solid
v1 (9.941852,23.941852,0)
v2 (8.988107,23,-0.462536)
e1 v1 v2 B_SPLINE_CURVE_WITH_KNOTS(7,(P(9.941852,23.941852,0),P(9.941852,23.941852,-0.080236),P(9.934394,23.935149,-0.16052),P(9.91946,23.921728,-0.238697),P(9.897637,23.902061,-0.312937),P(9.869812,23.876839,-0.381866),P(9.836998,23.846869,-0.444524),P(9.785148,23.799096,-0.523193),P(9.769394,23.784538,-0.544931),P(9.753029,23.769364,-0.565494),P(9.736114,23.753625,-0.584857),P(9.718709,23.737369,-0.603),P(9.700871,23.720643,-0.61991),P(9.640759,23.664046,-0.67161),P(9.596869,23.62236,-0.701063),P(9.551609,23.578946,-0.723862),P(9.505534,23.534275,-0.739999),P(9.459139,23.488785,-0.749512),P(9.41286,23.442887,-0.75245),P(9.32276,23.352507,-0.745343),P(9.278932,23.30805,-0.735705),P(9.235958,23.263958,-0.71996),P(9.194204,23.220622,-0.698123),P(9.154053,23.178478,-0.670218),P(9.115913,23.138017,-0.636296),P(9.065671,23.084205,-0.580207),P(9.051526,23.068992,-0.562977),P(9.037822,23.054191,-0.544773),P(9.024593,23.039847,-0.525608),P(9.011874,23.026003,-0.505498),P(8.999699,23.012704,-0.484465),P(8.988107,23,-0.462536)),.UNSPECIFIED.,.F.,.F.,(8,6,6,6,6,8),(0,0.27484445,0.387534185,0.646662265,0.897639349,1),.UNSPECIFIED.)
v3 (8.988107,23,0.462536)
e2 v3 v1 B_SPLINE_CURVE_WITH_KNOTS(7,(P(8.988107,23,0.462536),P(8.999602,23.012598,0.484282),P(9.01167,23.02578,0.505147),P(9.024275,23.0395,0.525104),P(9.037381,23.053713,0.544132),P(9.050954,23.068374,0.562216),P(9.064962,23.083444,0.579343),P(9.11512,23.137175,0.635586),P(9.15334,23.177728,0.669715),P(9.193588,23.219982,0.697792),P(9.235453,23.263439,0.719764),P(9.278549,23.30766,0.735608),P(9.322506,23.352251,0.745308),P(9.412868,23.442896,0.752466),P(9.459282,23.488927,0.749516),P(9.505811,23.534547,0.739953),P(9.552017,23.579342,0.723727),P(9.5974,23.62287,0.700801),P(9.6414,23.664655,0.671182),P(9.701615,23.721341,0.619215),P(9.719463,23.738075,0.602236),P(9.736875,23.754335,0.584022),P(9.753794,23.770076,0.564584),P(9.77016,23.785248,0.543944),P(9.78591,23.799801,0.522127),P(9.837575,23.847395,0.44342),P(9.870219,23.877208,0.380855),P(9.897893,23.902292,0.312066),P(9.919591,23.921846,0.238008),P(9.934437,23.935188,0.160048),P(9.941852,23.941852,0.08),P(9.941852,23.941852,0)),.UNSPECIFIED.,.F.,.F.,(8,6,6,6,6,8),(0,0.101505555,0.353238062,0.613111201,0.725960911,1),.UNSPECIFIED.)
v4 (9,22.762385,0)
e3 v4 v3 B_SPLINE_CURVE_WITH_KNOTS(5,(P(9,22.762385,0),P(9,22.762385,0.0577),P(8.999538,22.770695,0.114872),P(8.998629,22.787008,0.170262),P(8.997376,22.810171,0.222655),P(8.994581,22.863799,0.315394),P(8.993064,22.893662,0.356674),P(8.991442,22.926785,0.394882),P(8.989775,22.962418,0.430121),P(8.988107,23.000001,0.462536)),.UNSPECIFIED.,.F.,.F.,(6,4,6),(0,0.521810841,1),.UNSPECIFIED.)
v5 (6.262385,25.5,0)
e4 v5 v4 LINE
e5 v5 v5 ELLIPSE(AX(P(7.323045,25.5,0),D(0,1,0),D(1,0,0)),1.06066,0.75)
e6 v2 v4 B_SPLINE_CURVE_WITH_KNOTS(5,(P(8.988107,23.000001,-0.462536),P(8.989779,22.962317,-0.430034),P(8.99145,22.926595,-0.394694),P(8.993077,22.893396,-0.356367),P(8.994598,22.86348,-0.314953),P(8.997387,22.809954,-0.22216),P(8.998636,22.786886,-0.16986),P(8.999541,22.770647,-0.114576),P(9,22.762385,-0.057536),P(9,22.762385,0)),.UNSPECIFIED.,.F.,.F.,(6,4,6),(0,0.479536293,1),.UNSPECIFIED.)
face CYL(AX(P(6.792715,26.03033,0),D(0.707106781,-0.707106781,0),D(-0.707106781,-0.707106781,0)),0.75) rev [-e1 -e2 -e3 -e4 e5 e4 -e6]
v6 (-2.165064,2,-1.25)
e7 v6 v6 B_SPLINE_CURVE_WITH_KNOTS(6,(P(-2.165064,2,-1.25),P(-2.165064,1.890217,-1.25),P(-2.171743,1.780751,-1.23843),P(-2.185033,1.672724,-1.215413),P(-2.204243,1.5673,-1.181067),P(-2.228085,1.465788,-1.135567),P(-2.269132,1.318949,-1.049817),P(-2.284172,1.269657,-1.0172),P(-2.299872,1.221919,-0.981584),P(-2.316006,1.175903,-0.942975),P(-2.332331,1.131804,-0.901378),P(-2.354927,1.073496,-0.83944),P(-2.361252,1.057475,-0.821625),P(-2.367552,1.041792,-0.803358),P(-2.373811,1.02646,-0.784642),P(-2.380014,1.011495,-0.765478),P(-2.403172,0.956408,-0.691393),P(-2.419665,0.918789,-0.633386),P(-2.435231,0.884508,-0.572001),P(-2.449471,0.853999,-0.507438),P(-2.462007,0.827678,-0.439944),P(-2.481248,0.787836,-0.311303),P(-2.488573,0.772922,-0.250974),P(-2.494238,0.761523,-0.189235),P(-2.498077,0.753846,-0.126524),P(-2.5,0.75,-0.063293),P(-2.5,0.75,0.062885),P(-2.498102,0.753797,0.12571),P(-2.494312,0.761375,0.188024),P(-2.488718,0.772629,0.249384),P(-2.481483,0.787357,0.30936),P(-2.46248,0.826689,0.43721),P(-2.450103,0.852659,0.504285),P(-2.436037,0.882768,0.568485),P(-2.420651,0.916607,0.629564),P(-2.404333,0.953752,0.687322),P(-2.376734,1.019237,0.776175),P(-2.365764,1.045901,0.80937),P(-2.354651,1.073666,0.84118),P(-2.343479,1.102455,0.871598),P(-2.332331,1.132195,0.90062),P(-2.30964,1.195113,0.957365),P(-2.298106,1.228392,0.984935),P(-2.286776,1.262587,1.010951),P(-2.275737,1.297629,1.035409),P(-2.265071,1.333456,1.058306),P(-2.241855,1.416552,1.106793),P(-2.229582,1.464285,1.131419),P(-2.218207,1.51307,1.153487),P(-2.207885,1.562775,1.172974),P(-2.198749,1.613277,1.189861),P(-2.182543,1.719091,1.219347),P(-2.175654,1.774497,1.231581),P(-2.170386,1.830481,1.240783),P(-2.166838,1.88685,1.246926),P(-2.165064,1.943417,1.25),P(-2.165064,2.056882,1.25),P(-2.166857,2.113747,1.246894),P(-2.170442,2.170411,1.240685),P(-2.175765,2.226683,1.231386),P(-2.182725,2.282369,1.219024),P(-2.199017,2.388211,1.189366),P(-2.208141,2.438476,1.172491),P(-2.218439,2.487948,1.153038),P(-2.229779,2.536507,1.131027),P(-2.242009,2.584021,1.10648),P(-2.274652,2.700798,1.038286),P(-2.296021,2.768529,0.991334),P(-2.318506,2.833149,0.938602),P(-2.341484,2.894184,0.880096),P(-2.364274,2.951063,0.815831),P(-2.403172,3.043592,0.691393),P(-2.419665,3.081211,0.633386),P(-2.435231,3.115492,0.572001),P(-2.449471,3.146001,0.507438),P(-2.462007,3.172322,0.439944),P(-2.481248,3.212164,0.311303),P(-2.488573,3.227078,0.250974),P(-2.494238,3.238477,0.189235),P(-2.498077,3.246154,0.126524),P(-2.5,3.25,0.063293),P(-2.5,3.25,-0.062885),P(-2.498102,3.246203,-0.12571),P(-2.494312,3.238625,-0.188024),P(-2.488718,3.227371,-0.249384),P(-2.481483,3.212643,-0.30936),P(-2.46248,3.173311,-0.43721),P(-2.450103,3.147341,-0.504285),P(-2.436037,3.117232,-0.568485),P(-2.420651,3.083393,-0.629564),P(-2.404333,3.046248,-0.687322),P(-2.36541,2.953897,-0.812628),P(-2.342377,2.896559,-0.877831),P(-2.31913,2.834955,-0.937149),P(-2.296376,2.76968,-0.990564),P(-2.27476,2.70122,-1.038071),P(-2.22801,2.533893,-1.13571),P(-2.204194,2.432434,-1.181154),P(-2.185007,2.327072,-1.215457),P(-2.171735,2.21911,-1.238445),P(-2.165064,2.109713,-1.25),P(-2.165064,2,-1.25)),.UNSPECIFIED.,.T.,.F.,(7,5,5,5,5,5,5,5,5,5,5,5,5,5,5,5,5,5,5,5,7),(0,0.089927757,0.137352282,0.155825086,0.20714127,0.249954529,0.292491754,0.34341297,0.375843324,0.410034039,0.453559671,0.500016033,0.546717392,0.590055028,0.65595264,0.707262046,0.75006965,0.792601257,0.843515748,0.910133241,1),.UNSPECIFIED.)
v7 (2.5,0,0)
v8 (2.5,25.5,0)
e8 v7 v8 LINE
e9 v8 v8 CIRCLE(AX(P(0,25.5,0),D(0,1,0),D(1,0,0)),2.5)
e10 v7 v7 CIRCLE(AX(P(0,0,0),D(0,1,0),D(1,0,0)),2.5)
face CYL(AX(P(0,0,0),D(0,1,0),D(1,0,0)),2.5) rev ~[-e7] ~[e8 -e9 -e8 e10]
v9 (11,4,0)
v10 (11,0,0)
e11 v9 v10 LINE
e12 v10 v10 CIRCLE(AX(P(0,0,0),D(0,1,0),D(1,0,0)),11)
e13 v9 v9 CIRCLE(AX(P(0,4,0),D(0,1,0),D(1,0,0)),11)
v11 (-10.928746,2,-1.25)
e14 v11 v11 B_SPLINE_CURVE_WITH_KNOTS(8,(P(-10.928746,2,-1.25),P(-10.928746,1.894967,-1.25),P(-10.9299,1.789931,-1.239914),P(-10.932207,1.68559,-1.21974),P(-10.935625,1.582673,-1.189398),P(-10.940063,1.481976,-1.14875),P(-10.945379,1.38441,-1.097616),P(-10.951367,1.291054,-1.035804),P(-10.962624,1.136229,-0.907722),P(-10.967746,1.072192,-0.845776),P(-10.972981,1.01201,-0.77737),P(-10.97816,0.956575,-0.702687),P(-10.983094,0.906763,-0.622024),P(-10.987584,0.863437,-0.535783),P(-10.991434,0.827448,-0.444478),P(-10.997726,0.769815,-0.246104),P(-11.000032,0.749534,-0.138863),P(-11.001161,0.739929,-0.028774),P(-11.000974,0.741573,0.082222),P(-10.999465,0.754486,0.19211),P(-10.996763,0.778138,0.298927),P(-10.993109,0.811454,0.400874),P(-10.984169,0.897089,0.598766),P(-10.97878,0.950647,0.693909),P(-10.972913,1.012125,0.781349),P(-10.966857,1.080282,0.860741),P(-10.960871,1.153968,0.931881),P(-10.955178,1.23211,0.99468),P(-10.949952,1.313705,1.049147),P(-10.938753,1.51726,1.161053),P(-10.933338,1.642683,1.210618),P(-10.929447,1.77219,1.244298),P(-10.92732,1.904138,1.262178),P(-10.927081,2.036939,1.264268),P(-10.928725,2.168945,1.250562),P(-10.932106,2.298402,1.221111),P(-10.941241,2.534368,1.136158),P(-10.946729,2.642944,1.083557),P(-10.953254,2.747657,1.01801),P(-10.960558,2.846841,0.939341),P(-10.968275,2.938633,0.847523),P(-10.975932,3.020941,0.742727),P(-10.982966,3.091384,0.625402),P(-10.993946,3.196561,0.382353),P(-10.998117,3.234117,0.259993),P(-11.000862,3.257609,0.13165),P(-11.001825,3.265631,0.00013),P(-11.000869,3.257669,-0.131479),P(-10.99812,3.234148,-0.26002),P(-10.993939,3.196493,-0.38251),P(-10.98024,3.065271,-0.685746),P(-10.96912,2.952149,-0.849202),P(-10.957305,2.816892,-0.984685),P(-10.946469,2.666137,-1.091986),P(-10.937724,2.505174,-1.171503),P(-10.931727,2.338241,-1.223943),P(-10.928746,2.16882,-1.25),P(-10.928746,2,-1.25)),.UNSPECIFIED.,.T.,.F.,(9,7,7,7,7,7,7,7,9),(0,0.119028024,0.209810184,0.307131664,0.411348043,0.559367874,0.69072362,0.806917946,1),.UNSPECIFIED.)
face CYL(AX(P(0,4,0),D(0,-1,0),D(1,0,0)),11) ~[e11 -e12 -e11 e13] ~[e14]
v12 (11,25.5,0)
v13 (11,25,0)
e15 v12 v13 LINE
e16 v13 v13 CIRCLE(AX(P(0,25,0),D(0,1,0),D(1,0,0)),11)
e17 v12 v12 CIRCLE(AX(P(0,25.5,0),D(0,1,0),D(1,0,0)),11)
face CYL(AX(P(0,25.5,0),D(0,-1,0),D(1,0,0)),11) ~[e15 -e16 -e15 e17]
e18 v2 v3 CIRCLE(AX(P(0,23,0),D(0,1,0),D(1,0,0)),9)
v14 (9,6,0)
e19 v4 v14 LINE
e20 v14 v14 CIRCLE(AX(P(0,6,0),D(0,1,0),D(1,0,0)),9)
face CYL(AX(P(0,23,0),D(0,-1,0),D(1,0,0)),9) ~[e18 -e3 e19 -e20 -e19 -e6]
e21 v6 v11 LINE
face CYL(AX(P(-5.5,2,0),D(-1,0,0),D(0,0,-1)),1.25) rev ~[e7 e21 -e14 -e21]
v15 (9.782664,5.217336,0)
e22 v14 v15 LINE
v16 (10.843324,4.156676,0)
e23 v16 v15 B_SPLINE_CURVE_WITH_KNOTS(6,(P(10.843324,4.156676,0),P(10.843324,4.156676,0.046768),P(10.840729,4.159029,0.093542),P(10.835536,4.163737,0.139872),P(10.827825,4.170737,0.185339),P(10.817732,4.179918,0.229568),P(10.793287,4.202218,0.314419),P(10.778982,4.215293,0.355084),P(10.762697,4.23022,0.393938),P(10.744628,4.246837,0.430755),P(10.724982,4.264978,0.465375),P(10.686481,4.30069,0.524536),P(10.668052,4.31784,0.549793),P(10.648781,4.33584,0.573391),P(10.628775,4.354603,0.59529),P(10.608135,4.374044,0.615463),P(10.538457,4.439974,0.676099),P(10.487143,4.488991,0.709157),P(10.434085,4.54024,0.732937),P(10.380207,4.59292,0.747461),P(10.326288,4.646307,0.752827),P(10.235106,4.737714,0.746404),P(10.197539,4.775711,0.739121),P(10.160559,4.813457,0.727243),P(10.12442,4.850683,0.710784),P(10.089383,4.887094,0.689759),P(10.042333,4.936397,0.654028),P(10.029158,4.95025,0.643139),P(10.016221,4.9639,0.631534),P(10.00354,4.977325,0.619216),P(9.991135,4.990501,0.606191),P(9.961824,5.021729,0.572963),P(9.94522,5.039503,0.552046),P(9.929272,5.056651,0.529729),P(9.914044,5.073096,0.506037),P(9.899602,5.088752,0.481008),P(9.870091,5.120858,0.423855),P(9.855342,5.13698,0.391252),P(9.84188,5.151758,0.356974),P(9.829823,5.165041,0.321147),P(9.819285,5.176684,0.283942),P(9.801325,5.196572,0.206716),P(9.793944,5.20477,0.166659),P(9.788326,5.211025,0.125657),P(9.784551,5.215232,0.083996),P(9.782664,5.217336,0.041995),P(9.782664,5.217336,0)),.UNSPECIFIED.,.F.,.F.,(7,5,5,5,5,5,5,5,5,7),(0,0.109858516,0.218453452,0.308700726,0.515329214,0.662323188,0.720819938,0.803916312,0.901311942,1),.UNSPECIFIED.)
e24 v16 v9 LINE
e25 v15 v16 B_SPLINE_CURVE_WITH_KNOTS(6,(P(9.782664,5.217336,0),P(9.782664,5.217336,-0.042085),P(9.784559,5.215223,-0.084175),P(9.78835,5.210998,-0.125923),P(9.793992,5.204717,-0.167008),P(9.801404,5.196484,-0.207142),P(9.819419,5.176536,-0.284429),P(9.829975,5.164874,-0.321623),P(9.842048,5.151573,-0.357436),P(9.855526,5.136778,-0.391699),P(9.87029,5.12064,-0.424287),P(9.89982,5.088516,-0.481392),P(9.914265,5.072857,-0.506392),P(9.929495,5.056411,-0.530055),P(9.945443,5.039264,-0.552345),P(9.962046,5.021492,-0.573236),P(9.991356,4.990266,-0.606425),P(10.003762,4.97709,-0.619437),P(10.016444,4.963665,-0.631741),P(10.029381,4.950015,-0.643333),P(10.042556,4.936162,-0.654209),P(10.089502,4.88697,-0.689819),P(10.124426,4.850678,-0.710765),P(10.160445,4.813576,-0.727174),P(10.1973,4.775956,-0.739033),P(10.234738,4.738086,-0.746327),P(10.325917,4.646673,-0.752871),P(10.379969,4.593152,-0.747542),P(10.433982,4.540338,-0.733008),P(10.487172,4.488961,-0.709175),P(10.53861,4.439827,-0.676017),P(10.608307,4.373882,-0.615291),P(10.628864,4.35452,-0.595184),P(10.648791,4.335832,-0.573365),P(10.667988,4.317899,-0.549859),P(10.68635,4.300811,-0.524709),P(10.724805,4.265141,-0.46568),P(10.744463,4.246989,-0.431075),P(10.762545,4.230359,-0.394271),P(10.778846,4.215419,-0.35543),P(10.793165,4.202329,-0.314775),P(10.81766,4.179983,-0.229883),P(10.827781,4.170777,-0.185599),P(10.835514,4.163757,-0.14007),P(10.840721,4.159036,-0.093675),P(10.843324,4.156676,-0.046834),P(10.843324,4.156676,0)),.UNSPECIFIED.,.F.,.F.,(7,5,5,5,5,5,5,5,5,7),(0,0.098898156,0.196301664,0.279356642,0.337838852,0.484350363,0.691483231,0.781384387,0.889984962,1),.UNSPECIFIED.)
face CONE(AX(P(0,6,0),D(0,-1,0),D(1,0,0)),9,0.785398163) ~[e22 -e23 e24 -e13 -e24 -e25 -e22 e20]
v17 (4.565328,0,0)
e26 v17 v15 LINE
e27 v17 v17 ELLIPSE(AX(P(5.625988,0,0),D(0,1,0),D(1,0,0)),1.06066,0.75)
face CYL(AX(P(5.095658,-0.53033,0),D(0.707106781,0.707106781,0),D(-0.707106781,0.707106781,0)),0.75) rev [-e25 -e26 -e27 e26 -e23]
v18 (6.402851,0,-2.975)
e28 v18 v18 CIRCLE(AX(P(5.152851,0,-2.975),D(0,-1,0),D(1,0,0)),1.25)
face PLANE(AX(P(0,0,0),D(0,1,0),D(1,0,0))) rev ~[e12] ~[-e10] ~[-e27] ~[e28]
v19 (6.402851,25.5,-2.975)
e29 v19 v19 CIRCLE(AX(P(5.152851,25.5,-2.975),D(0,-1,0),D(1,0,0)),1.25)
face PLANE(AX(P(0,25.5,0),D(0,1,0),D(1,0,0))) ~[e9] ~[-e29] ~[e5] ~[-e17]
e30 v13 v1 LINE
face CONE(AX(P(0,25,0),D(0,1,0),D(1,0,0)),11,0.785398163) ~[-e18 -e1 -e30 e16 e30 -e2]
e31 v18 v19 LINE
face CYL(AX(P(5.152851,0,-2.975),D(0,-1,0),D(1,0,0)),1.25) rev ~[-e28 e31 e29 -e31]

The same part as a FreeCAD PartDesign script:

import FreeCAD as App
import Part
import Sketcher
from FreeCAD import Vector
Q = App.Units.Quantity


def add_polygon(sketch, points):
    """Adds a closed chain of lines whose ends are joined by coincident constraints."""
    first, n = sketch.GeometryCount, len(points)
    for a, b in zip(points, points[1:] + points[:1]):
        sketch.addGeometry(Part.LineSegment(App.Vector(*a, 0), App.Vector(*b, 0)), False)
    for i in range(n):
        sketch.addConstraint(Sketcher.Constraint("Coincident", first + i, 2, first + (i + 1) % n, 1))

doc = App.newDocument("Part")
params = doc.addObject("Spreadsheet::Sheet", "Params")
for row, (alias, value) in enumerate([
    ("sketch1_height", "4 mm"),
    ("sketch1_height2", "17 mm"),
    ("sketch1_width", "8.5 mm"),
    ("sketch1_height3", "25.5 mm"),
    ("sketch1_height4", "0.5 mm"),
    ("revolution_angle", "360 deg"),
    ("sketch2_diameter", "2.5 mm"),
    ("sketch3_length", "0.75 mm"),
    ("groove_angle", "360 deg"),
    ("sketch4_length", "0.75 mm"),
    ("groove2_angle", "360 deg"),
    ("sketch5_width", "11 mm"),
    ("sketch5_height", "1.25 mm"),
    ("groove3_angle", "360 deg"),
], start=1):
    params.set(f"A{row}", alias)
    params.set(f"B{row}", "=" + value)
    params.setAlias(f"B{row}", alias)

body = doc.addObject("PartDesign::Body", "Body")

sketch1 = body.newObject("Sketcher::SketchObject", "Sketch")
sketch1.AttachmentSupport = (doc.getObject("XY_Plane"), [""])
sketch1.MapMode = "FlatFace"
add_polygon(sketch1, [(11, 25.5), (2.5, 25.5), (2.5, 0), (11, 0), (11, 4), (9, 6), (9, 23), (11, 25)])
sketch1.addConstraint(Sketcher.Constraint("Horizontal", 0))
sketch1.addConstraint(Sketcher.Constraint("Vertical", 1))
sketch1.addConstraint(Sketcher.Constraint("Horizontal", 2))
sketch1.addConstraint(Sketcher.Constraint("Vertical", 3))
sketch1.addConstraint(Sketcher.Constraint("Vertical", 5))
sketch1.addConstraint(Sketcher.Constraint("Vertical", 7))
sketch1.addConstraint(Sketcher.Constraint("PointOnObject", 1, 2, -1))
sketch1.addConstraint(Sketcher.Constraint("Perpendicular", 4, 6))
sketch1.addConstraint(Sketcher.Constraint("Vertical", 3, 2, 6, 2))
sketch1.addConstraint(Sketcher.Constraint("Equal", 4, 6))
sketch1.addConstraint(Sketcher.Constraint("DistanceY", 3, 1, 3, 2, Q("4 mm")))
sketch1.addConstraint(Sketcher.Constraint("DistanceY", 5, 1, 5, 2, Q("17 mm")))
sketch1.addConstraint(Sketcher.Constraint("DistanceX", 0, 2, 0, 1, Q("8.5 mm")))
sketch1.addConstraint(Sketcher.Constraint("DistanceY", 1, 2, 1, 1, Q("25.5 mm")))
sketch1.addConstraint(Sketcher.Constraint("DistanceY", 7, 1, 7, 2, Q("0.5 mm")))
sketch1.addConstraint(Sketcher.Constraint("DistanceX", -1, 1, 2, 2, Q("11 mm")))
sketch1.setExpression("Constraints[18]", "Params.sketch1_height")
sketch1.setExpression("Constraints[19]", "Params.sketch1_height2")
sketch1.setExpression("Constraints[20]", "Params.sketch1_width")
sketch1.setExpression("Constraints[21]", "Params.sketch1_height3")
sketch1.setExpression("Constraints[22]", "Params.sketch1_height4")
revolution = body.newObject("PartDesign::Revolution", "Revolution")
revolution.Profile = sketch1
revolution.ReferenceAxis = (sketch1, ["V_Axis"])
revolution.setExpression("Angle", "Params.revolution_angle")

sketch2 = body.newObject("Sketcher::SketchObject", "Sketch001")
sketch2.AttachmentSupport = (doc.getObject("XZ_Plane"), [""])
sketch2.MapMode = "FlatFace"
sketch2.addGeometry(Part.Circle(Vector(5.2, -3, 0), Vector(0, 0, 1), 1.2), False)
sketch2.addConstraint(Sketcher.Constraint("Diameter", 0, Q("2.5 mm")))
sketch2.addConstraint(Sketcher.Constraint("DistanceY", 0, 3, -1, 1, Q("2.975 mm")))
sketch2.addConstraint(Sketcher.Constraint("DistanceX", -1, 1, 0, 3, Q("5.152851 mm")))
sketch2.setExpression("Constraints[0]", "Params.sketch2_diameter")
pocket1 = body.newObject("PartDesign::Pocket", "Pocket")
pocket1.Profile = sketch2
pocket1.Type = "ThroughAll"

sketch3 = body.newObject("Sketcher::SketchObject", "Sketch002")
sketch3.AttachmentSupport = (doc.getObject("XY_Plane"), [""])
sketch3.MapMode = "FlatFace"
add_polygon(sketch3, [(4.6, 0), (5.1, -0.5), (10.3, 4.7), (9.8, 5.2)])
sketch3.addGeometry(Part.LineSegment(Vector(10.3, 4.7, 0), Vector(5.1, -0.5, 0)), True)
sketch3.addConstraint(Sketcher.Constraint("Coincident", 4, 1, 1, 2))
sketch3.addConstraint(Sketcher.Constraint("Coincident", 4, 2, 0, 2))
sketch3.addConstraint(Sketcher.Constraint("PointOnObject", 3, 2, -1))
sketch3.addConstraint(Sketcher.Constraint("Perpendicular", 0, 1))
sketch3.addConstraint(Sketcher.Constraint("Perpendicular", 1, 2))
sketch3.addConstraint(Sketcher.Constraint("Perpendicular", 2, 3))
sketch3.addConstraint(Sketcher.Constraint("Angle", 0, Q("-45 deg")))
sketch3.addConstraint(Sketcher.Constraint("Distance", 0, Q("0.75 mm")))
sketch3.addConstraint(Sketcher.Constraint("DistanceX", -1, 1, 0, 2, Q("5.095658 mm")))
sketch3.addConstraint(Sketcher.Constraint("Distance", 1, Q("7.378427 mm")))
sketch3.setExpression("Constraints[11]", "Params.sketch3_length")
groove = body.newObject("PartDesign::Groove", "Groove")
groove.Profile = sketch3
groove.ReferenceAxis = (sketch3, ["Axis0"])
groove.setExpression("Angle", "Params.groove_angle")

sketch4 = body.newObject("Sketcher::SketchObject", "Sketch003")
sketch4.AttachmentSupport = (doc.getObject("XY_Plane"), [""])
sketch4.MapMode = "FlatFace"
add_polygon(sketch4, [(10.4, 22.4), (6.8, 26), (6.3, 25.5), (9.9, 21.9)])
sketch4.addGeometry(Part.LineSegment(Vector(10.4, 22.4, 0), Vector(6.8, 26, 0)), True)
sketch4.addConstraint(Sketcher.Constraint("Coincident", 4, 1, 3, 2))
sketch4.addConstraint(Sketcher.Constraint("Coincident", 4, 2, 0, 2))
sketch4.addConstraint(Sketcher.Constraint("Perpendicular", 0, 1))
sketch4.addConstraint(Sketcher.Constraint("Perpendicular", 1, 2))
sketch4.addConstraint(Sketcher.Constraint("Perpendicular", 2, 3))
sketch4.addConstraint(Sketcher.Constraint("Angle", 0, Q("135 deg")))
sketch4.addConstraint(Sketcher.Constraint("DistanceY", -1, 1, 1, 2, Q("25.5 mm")))
sketch4.addConstraint(Sketcher.Constraint("Distance", 1, Q("0.75 mm")))
sketch4.addConstraint(Sketcher.Constraint("DistanceY", -1, 1, 2, 2, Q("21.876979 mm")))
sketch4.addConstraint(Sketcher.Constraint("DistanceX", -1, 1, 0, 2, Q("6.792715 mm")))
sketch4.setExpression("Constraints[11]", "Params.sketch4_length")
groove2 = body.newObject("PartDesign::Groove", "Groove001")
groove2.Profile = sketch4
groove2.ReferenceAxis = (sketch4, ["Axis0"])
groove2.setExpression("Angle", "Params.groove2_angle")

sketch5 = body.newObject("Sketcher::SketchObject", "Sketch004")
sketch5.AttachmentSupport = (doc.getObject("XZ_Plane"), [""])
sketch5.MapMode = "FlatFace"
sketch5.AttachmentOffset = App.Placement(Vector(0, 0, -2), App.Rotation())
add_polygon(sketch5, [(-11, 0), (0, 0), (0, -1.2), (-11, -1.2)])
sketch5.addConstraint(Sketcher.Constraint("Horizontal", 0))
sketch5.addConstraint(Sketcher.Constraint("Vertical", 1))
sketch5.addConstraint(Sketcher.Constraint("Horizontal", 2))
sketch5.addConstraint(Sketcher.Constraint("Vertical", 3))
sketch5.addConstraint(Sketcher.Constraint("Coincident", 0, 2, -1, 1))
sketch5.addConstraint(Sketcher.Constraint("DistanceX", 0, 1, 0, 2, Q("11 mm")))
sketch5.addConstraint(Sketcher.Constraint("DistanceY", 1, 2, 1, 1, Q("1.25 mm")))
sketch5.setExpression("Constraints[9]", "Params.sketch5_width")
sketch5.setExpression("Constraints[10]", "Params.sketch5_height")
groove3 = body.newObject("PartDesign::Groove", "Groove002")
groove3.Profile = sketch5
groove3.ReferenceAxis = (sketch5, ["H_Axis"])
groove3.setExpression("Angle", "Params.groove3_angle")

doc.recompute()
